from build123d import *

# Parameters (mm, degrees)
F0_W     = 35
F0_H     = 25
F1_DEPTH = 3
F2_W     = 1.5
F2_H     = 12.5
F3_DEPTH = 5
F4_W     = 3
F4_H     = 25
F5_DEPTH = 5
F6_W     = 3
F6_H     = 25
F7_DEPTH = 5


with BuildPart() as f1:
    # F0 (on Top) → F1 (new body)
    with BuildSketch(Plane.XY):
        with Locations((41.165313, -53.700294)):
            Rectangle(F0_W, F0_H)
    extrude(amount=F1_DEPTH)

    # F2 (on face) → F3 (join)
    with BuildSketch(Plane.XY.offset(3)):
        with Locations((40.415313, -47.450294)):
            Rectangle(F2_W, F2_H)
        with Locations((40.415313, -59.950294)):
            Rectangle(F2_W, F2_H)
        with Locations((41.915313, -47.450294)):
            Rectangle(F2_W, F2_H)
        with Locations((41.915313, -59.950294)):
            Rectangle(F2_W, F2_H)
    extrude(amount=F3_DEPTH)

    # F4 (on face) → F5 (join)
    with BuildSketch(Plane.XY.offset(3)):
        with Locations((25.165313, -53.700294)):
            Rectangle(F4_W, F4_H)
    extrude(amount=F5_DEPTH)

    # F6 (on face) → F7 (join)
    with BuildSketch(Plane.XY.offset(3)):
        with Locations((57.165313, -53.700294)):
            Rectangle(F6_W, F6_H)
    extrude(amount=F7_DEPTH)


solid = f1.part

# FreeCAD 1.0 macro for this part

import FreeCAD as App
import Part
import Sketcher
from FreeCAD import Vector
Q = App.Units.Quantity


def add_polygon(sketch, points):
    """Adds a closed chain of lines whose ends are joined by coincident constraints."""
    first, n = sketch.GeometryCount, len(points)
    for a, b in zip(points, points[1:] + points[:1]):
        sketch.addGeometry(Part.LineSegment(App.Vector(*a, 0), App.Vector(*b, 0)), False)
    for i in range(n):
        sketch.addConstraint(Sketcher.Constraint("Coincident", first + i, 2, first + (i + 1) % n, 1))

doc = App.newDocument("Part")
body = doc.addObject("PartDesign::Body", "Body")

# Sketch on XY plane
sketch1 = body.newObject("Sketcher::SketchObject", "Sketch")
sketch1.AttachmentSupport = (doc.getObject("XY_Plane"), [""])
sketch1.MapMode = "FlatFace"
add_polygon(sketch1, [(23.665313, -41.200294), (23.665313, -66.200294), (58.665313, -66.200294), (58.665313, -41.200294)])  # lines 0-3
sketch1.addConstraint(Sketcher.Constraint("Vertical", 0))
sketch1.addConstraint(Sketcher.Constraint("Horizontal", 1))
sketch1.addConstraint(Sketcher.Constraint("Vertical", 2))
sketch1.addConstraint(Sketcher.Constraint("Horizontal", 3))
sketch1.addConstraint(Sketcher.Constraint("DistanceX", 1, 1, 1, 2, Q("35 mm")))
sketch1.addConstraint(Sketcher.Constraint("DistanceY", 0, 2, 0, 1, Q("25 mm")))
sketch1.addConstraint(Sketcher.Constraint("DistanceX", -1, 1, 0, 2, Q("23.665313 mm")))
sketch1.addConstraint(Sketcher.Constraint("DistanceY", 0, 2, -1, 1, Q("66.200294 mm")))
pad1 = body.newObject("PartDesign::Pad", "Pad")
pad1.Profile = sketch1
pad1.Length = 3

# Sketch on XY plane
sketch2 = body.newObject("Sketcher::SketchObject", "Sketch001")
sketch2.AttachmentSupport = (doc.getObject("XY_Plane"), [""])
sketch2.MapMode = "FlatFace"
sketch2.AttachmentOffset = App.Placement(Vector(0, 0, 3), App.Rotation())
add_polygon(sketch2, [(39.665313, -41.200294), (39.665313, -66.200294), (42.665313, -66.200294), (42.665313, -41.200294)])  # lines 0-3
sketch2.addConstraint(Sketcher.Constraint("Vertical", 0))
sketch2.addConstraint(Sketcher.Constraint("Horizontal", 1))
sketch2.addConstraint(Sketcher.Constraint("Vertical", 2))
sketch2.addConstraint(Sketcher.Constraint("Horizontal", 3))
sketch2.addConstraint(Sketcher.Constraint("DistanceX", 1, 1, 1, 2, Q("3 mm")))
sketch2.addConstraint(Sketcher.Constraint("DistanceY", 0, 2, 0, 1, Q("25 mm")))
sketch2.addConstraint(Sketcher.Constraint("DistanceX", -1, 1, 0, 2, Q("39.665313 mm")))
sketch2.addConstraint(Sketcher.Constraint("DistanceY", 0, 2, -1, 1, Q("66.200294 mm")))
pad2 = body.newObject("PartDesign::Pad", "Pad001")
pad2.Profile = sketch2
pad2.Length = 5

# Sketch on XY plane
sketch3 = body.newObject("Sketcher::SketchObject", "Sketch002")
sketch3.AttachmentSupport = (doc.getObject("XY_Plane"), [""])
sketch3.MapMode = "FlatFace"
sketch3.AttachmentOffset = App.Placement(Vector(0, 0, 3), App.Rotation())
add_polygon(sketch3, [(23.665313, -41.200294), (23.665313, -66.200294), (26.665313, -66.200294), (26.665313, -41.200294)])  # lines 0-3
sketch3.addConstraint(Sketcher.Constraint("Vertical", 0))
sketch3.addConstraint(Sketcher.Constraint("Horizontal", 1))
sketch3.addConstraint(Sketcher.Constraint("Vertical", 2))
sketch3.addConstraint(Sketcher.Constraint("Horizontal", 3))
sketch3.addConstraint(Sketcher.Constraint("DistanceX", 1, 1, 1, 2, Q("3 mm")))
sketch3.addConstraint(Sketcher.Constraint("DistanceY", 0, 2, 0, 1, Q("25 mm")))
sketch3.addConstraint(Sketcher.Constraint("DistanceX", -1, 1, 0, 2, Q("23.665313 mm")))
sketch3.addConstraint(Sketcher.Constraint("DistanceY", 0, 2, -1, 1, Q("66.200294 mm")))
pad3 = body.newObject("PartDesign::Pad", "Pad002")
pad3.Profile = sketch3
pad3.Length = 5

# Sketch on XY plane
sketch4 = body.newObject("Sketcher::SketchObject", "Sketch003")
sketch4.AttachmentSupport = (doc.getObject("XY_Plane"), [""])
sketch4.MapMode = "FlatFace"
sketch4.AttachmentOffset = App.Placement(Vector(0, 0, 3), App.Rotation())
add_polygon(sketch4, [(55.665313, -41.200294), (55.665313, -66.200294), (58.665313, -66.200294), (58.665313, -41.200294)])  # lines 0-3
sketch4.addConstraint(Sketcher.Constraint("Vertical", 0))
sketch4.addConstraint(Sketcher.Constraint("Horizontal", 1))
sketch4.addConstraint(Sketcher.Constraint("Vertical", 2))
sketch4.addConstraint(Sketcher.Constraint("Horizontal", 3))
sketch4.addConstraint(Sketcher.Constraint("DistanceX", 1, 1, 1, 2, Q("3 mm")))
sketch4.addConstraint(Sketcher.Constraint("DistanceY", 0, 2, 0, 1, Q("25 mm")))
sketch4.addConstraint(Sketcher.Constraint("DistanceX", -1, 1, 0, 2, Q("55.665313 mm")))
sketch4.addConstraint(Sketcher.Constraint("DistanceY", 0, 2, -1, 1, Q("66.200294 mm")))
pad4 = body.newObject("PartDesign::Pad", "Pad003")
pad4.Profile = sketch4
pad4.Length = 5

doc.recompute()
